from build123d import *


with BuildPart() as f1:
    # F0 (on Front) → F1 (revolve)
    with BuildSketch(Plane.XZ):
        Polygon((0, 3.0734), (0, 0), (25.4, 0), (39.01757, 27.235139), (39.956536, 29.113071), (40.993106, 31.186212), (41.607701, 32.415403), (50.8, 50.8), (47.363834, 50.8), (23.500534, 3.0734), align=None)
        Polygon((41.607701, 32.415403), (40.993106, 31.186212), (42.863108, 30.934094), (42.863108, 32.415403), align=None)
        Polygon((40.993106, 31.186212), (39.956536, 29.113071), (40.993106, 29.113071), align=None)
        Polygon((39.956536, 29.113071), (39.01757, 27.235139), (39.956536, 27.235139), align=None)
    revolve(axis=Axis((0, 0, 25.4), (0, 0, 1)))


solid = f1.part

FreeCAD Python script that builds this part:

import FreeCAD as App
import Part
import Sketcher
Q = App.Units.Quantity


def add_polygon(sketch, points):
    """Adds a closed chain of lines whose ends are joined by coincident constraints."""
    first, n = sketch.GeometryCount, len(points)
    for a, b in zip(points, points[1:] + points[:1]):
        sketch.addGeometry(Part.LineSegment(App.Vector(*a, 0), App.Vector(*b, 0)), False)
    for i in range(n):
        sketch.addConstraint(Sketcher.Constraint("Coincident", first + i, 2, first + (i + 1) % n, 1))

doc = App.newDocument("Part")
params = doc.addObject("Spreadsheet::Sheet", "Params")
for row, (alias, value) in enumerate([
    ("sketch1_width", "1 in"),
    ("sketch1_height", "0.121 in"),
    ("revolution_angle", "360 deg"),
], start=1):
    params.set(f"A{row}", alias)
    params.set(f"B{row}", "=" + value)
    params.setAlias(f"B{row}", alias)

body = doc.addObject("PartDesign::Body", "Body")

sketch1 = doc.addObject("Sketcher::SketchObject", "Sketch")
body.addObject(sketch1)
sketch1.AttachmentSupport = (doc.XZ_Plane, [""])
sketch1.MapMode = "FlatFace"
add_polygon(sketch1, [(0, 3.1), (0, 0), (25.4, 0), (39, 27.2), (40, 27.2), (40, 29.1), (41, 29.1), (41, 31.2), (42.9, 30.9), (42.9, 32.4), (41.6, 32.4), (50.8, 50.8), (47.4, 50.8), (23.5, 3.1)])
sketch1.addConstraint([
    Sketcher.Constraint("Vertical", 0),
    Sketcher.Constraint("Horizontal", 1),
    Sketcher.Constraint("Horizontal", 3),
    Sketcher.Constraint("Vertical", 4),
    Sketcher.Constraint("Horizontal", 5),
    Sketcher.Constraint("Vertical", 6),
    Sketcher.Constraint("Vertical", 8),
    Sketcher.Constraint("Horizontal", 9),
    Sketcher.Constraint("Horizontal", 11),
    Sketcher.Constraint("Horizontal", 13),
    Sketcher.Constraint("Coincident", 0, 2, -1, 1),
    Sketcher.Constraint("Parallel", 2, 10),
    Sketcher.Constraint("Parallel", 10, 12),
    Sketcher.Constraint("DistanceX", 1, 1, 1, 2, Q("1 in")),
    Sketcher.Constraint("DistanceX", -1, 1, 10, 2, Q("2 in")),
    Sketcher.Constraint("DistanceY", -1, 1, 10, 2, Q("2 in")),
    Sketcher.Constraint("DistanceY", 0, 2, 0, 1, Q("0.121 in")),
    Sketcher.Constraint("DistanceX", 5, 1, 5, 2, 1.03657),
    Sketcher.Constraint("DistanceY", 6, 1, 6, 2, 2.073141),
    Sketcher.Constraint("DistanceY", 8, 1, 8, 2, 1.481309),
    Sketcher.Constraint("DistanceX", -1, 1, 9, 2, 41.607701),
    Sketcher.Constraint("DistanceX", 6, 2, 7, 2, 1.870002),
    Sketcher.Constraint("Distance", 2, 30.449811),
    Sketcher.Constraint("Distance", 7, 1.886921),
    Sketcher.Constraint("Distance", 12, 53.359961),
    Sketcher.Constraint("DistanceX", 3, 1, 3, 2, 0.938966),
    Sketcher.Constraint("DistanceX", 11, 2, 11, 1, 3.436166),
])
sketch1.setExpression("Constraints[27]", "Params.sketch1_width")
sketch1.setExpression("Constraints[30]", "Params.sketch1_height")
revolution = doc.addObject("PartDesign::Revolution", "Revolution")
body.addObject(revolution)
revolution.Profile = sketch1
revolution.ReferenceAxis = (sketch1, ["V_Axis"])
revolution.setExpression("Angle", "Params.revolution_angle")

doc.recompute()
